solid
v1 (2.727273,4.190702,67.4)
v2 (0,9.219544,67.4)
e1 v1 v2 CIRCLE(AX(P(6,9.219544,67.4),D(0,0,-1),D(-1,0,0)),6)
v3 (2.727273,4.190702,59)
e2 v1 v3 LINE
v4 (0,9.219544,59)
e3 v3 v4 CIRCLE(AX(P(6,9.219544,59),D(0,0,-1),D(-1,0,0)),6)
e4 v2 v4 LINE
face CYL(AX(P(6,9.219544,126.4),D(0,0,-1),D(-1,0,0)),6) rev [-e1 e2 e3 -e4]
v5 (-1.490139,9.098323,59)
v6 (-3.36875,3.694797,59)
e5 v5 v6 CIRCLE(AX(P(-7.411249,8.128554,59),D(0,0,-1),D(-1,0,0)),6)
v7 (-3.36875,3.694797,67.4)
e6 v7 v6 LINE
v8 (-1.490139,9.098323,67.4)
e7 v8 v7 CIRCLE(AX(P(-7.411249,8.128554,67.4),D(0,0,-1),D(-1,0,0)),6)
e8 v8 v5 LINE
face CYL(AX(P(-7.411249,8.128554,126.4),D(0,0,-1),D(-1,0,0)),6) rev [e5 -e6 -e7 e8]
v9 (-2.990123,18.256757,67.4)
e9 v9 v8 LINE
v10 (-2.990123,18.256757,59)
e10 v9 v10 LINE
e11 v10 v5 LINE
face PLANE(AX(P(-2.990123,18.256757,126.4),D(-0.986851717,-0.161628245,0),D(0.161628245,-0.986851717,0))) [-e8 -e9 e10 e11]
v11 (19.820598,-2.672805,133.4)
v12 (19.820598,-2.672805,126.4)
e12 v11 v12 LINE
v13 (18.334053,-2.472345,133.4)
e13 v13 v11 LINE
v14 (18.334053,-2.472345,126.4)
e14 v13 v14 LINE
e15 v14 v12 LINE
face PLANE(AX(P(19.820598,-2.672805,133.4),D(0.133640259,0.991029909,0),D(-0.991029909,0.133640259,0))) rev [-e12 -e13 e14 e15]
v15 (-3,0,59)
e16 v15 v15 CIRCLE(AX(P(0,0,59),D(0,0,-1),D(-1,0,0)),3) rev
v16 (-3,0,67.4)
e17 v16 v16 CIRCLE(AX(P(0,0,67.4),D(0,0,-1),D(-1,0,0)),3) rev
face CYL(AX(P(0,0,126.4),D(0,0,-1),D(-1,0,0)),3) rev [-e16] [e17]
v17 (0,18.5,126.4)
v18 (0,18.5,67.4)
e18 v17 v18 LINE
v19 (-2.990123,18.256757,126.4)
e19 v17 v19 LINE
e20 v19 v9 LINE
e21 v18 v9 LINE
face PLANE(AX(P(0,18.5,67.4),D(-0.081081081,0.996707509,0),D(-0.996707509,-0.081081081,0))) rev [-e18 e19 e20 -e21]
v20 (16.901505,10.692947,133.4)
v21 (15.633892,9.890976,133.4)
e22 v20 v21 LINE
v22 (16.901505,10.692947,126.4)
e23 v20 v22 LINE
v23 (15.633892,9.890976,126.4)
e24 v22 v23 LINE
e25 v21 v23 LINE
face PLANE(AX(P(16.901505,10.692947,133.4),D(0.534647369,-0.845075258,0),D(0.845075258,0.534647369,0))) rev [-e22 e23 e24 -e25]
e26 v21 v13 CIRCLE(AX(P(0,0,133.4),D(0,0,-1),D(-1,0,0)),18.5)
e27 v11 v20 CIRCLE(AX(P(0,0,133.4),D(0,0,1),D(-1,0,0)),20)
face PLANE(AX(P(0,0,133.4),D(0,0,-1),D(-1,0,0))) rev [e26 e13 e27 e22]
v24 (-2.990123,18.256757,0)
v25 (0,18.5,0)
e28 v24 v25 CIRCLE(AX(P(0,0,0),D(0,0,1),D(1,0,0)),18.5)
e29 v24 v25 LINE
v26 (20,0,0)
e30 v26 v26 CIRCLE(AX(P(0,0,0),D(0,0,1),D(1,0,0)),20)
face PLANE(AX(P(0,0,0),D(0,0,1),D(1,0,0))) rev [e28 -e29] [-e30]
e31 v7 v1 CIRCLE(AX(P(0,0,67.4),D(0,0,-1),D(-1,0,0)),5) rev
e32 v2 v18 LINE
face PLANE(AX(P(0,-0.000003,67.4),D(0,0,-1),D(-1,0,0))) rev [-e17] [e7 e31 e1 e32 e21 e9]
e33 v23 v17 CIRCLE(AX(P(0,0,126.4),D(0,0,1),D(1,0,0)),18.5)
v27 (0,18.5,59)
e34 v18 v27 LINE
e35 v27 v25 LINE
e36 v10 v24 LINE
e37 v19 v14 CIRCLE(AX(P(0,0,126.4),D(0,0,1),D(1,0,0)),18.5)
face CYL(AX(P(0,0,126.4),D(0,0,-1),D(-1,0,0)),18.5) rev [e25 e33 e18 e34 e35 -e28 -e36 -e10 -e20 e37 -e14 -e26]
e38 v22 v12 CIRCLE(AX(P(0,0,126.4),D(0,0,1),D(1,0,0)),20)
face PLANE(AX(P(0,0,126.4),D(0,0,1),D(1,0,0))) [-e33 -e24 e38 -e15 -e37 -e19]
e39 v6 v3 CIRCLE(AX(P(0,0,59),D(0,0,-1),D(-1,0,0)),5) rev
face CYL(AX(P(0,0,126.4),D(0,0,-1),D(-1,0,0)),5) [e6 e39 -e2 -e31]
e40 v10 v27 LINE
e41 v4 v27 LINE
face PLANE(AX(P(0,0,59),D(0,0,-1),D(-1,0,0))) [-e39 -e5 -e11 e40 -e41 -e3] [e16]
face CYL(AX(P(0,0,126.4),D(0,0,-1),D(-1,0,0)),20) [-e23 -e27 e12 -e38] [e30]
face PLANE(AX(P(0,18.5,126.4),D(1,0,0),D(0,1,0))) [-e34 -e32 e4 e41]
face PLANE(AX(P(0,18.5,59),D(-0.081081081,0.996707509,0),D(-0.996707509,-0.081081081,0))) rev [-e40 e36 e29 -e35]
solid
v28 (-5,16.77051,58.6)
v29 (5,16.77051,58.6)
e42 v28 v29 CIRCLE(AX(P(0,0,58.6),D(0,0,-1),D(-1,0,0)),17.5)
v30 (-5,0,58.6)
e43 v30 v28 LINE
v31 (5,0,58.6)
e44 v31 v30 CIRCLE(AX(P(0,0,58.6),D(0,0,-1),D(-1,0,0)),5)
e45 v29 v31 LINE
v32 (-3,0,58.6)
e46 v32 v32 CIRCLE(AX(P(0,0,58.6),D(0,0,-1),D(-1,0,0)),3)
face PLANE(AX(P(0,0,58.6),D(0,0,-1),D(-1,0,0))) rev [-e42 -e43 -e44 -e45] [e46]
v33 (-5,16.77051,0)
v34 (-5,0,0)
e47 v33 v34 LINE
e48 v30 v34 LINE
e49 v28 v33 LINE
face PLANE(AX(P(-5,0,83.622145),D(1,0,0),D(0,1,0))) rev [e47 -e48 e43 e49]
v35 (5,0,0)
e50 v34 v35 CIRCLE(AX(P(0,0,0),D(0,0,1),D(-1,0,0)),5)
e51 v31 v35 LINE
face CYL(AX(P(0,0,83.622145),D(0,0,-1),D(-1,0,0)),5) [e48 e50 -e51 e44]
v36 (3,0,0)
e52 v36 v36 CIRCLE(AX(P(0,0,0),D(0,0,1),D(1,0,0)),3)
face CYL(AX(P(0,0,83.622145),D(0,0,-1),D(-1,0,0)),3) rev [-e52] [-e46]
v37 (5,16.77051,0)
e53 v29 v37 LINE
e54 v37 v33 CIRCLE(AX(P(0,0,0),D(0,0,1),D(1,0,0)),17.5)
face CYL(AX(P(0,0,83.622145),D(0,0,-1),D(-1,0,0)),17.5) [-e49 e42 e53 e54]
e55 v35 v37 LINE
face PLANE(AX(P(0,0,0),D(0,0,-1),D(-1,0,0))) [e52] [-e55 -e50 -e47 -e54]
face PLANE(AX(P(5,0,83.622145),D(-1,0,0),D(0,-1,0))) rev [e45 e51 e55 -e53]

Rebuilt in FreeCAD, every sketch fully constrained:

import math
import FreeCAD as App
import Part
import Sketcher

V = App.Vector
Q = App.Units.Quantity

doc = App.newDocument("Part")
body = doc.addObject("PartDesign::Body", "Body")

# Sketch on XY plane
sketch1 = body.newObject("Sketcher::SketchObject", "Sketch")
sketch1.AttachmentSupport = (doc.getObject("XY_Plane"), [""])
sketch1.MapMode = "FlatFace"
sketch1.addGeometry([
    Part.Circle(V(0, 0, 0), V(0, 0, 1), 20),
    Part.Circle(V(0, 0, 0), V(0, 0, 1), 18),
], False)
sketch1.addConstraint([
    Sketcher.Constraint("Coincident", 0, 3, -1, 1),
    Sketcher.Constraint("Coincident", 1, 3, -1, 1),
    Sketcher.Constraint("Diameter", 0, 40.0),
    Sketcher.Constraint("Diameter", 1, 37.0),
])
pad1 = body.newObject("PartDesign::Pad", "Pad")
pad1.Profile = sketch1
pad1.Length = 126.4

# Sketch on XY plane
sketch2 = body.newObject("Sketcher::SketchObject", "Sketch001")
sketch2.AttachmentSupport = (doc.getObject("XY_Plane"), [""])
sketch2.MapMode = "FlatFace"
sketch2.addGeometry([
    Part.LineSegment(V(0, 18.5, 0), V(0, 9.2, 0)),  # 0
    Part.ArcOfCircle(Part.Circle(V(6, 9.2, 0), V(0, 0, 1), 6), math.radians(-180), math.radians(-123)),  # 1
    Part.ArcOfCircle(Part.Circle(V(0, 0, 0), V(0, 0, 1), 5), math.radians(132), math.radians(417)),  # 2
    Part.ArcOfCircle(Part.Circle(V(-7.4, 8.1, 0), V(0, 0, 1), 6), math.radians(-48), math.radians(9)),  # 3
    Part.LineSegment(V(-1.5, 9.1, 0), V(-3, 18.3, 0)),  # 4
    Part.ArcOfCircle(Part.Circle(V(0, 0, 0), V(0, 0, 1), 18.5), math.radians(90), math.radians(99.3)),  # 5
    Part.Circle(V(0, 0, 0), V(0, 0, 1), 3),  # 6
], False)
sketch2.addConstraint([
    Sketcher.Constraint("Tangent", 0, 2, 1, 1),
    Sketcher.Constraint("Tangent", 1, 2, 2, 2),
    Sketcher.Constraint("Tangent", 2, 1, 3, 1),
    Sketcher.Constraint("Tangent", 3, 2, 4, 1),
    Sketcher.Constraint("Coincident", 4, 2, 5, 2),
    Sketcher.Constraint("Coincident", 5, 1, 0, 1),
    Sketcher.Constraint("Vertical", 0),
    Sketcher.Constraint("Coincident", 2, 3, -1, 1),
    Sketcher.Constraint("Coincident", 5, 3, -1, 1),
    Sketcher.Constraint("Coincident", 6, 3, -1, 1),
    Sketcher.Constraint("Equal", 1, 3),
    Sketcher.Constraint("PointOnObject", 0, 2, -2),
    Sketcher.Constraint("Diameter", 6, 6.0),
    Sketcher.Constraint("Radius", 1, 6.0),
    Sketcher.Constraint("Radius", 2, 5.0),
    Sketcher.Constraint("Radius", 5, 18.5),
    Sketcher.Constraint("DistanceX", 3, 3, 2, 1, 4.0425),
    Sketcher.Constraint("DistanceX", 3, 2, -1, 1, 1.490139),
])
pad2 = body.newObject("PartDesign::Pad", "Pad001")
pad2.Profile = sketch2
pad2.Length = 126.4

# Sketch on XY plane
sketch3 = body.newObject("Sketcher::SketchObject", "Sketch002")
sketch3.AttachmentSupport = (doc.getObject("XY_Plane"), [""])
sketch3.MapMode = "FlatFace"
sketch3.addGeometry([
    Part.LineSegment(V(-3, 18.3, 0), V(0, 18.5, 0)),
    Part.ArcOfCircle(Part.Circle(V(0, 0, 0), V(0, 0, 1), 18.5), math.radians(99), math.radians(450)),
], False)
sketch3.addConstraint([
    Sketcher.Constraint("Coincident", 0, 1, 1, 1),
    Sketcher.Constraint("Coincident", 1, 2, 0, 2),
    Sketcher.Constraint("Coincident", 1, 3, -1, 1),
    Sketcher.Constraint("PointOnObject", 1, 2, -2),
    Sketcher.Constraint("Radius", 1, 18.5),
    Sketcher.Constraint("Distance", 0, 3.0),
])
pocket1 = body.newObject("PartDesign::Pocket", "Pocket")
pocket1.Profile = sketch3
pocket1.Length = 59
pocket1.Reversed = True

# Sketch on XY plane
sketch4 = body.newObject("Sketcher::SketchObject", "Sketch003")
sketch4.AttachmentSupport = (doc.getObject("XY_Plane"), [""])
sketch4.MapMode = "FlatFace"
sketch4.AttachmentOffset = App.Placement(V(0, 0, 126.4), App.Rotation())
sketch4.addGeometry([
    Part.LineSegment(V(0, 18.5, 0), V(-3, 18.3, 0)),
    Part.ArcOfCircle(Part.Circle(V(0, 0, 0), V(0, 0, 1), 18.5), math.radians(99), math.radians(450)),
], False)
sketch4.addConstraint([
    Sketcher.Constraint("Coincident", 0, 1, 1, 2),
    Sketcher.Constraint("Coincident", 1, 1, 0, 2),
    Sketcher.Constraint("Coincident", 1, 3, -1, 1),
    Sketcher.Constraint("PointOnObject", 0, 1, -2),
    Sketcher.Constraint("Distance", 0, 3.0),
    Sketcher.Constraint("DistanceY", -1, 1, 0, 1, 18.5),
])
pocket2 = body.newObject("PartDesign::Pocket", "Pocket001")
pocket2.Profile = sketch4
pocket2.Length = 59

# Sketch on XY plane
sketch5 = body.newObject("Sketcher::SketchObject", "Sketch004")
sketch5.AttachmentSupport = (doc.getObject("XY_Plane"), [""])
sketch5.MapMode = "FlatFace"
sketch5.AttachmentOffset = App.Placement(V(0, 0, 126.4), App.Rotation())
sketch5.addGeometry([
    Part.LineSegment(V(16.9, 10.7, 0), V(15.6, 9.9, 0)),
    Part.ArcOfCircle(Part.Circle(V(0, 0, 0), V(0, 0, 1), 18.5), math.radians(-8), math.radians(32)),
    Part.LineSegment(V(18.3, -2.5, 0), V(19.8, -2.7, 0)),
    Part.ArcOfCircle(Part.Circle(V(0, 0, 0), V(0, 0, 1), 20), math.radians(-8), math.radians(32)),
], False)
sketch5.addConstraint([
    Sketcher.Constraint("Coincident", 0, 2, 1, 2),
    Sketcher.Constraint("Coincident", 1, 1, 2, 1),
    Sketcher.Constraint("Coincident", 2, 2, 3, 1),
    Sketcher.Constraint("Coincident", 3, 2, 0, 1),
    Sketcher.Constraint("Coincident", 1, 3, -1, 1),
    Sketcher.Constraint("Coincident", 3, 3, -1, 1),
    Sketcher.Constraint("Radius", 3, 20.0),
    Sketcher.Constraint("Radius", 1, 18.5),
    Sketcher.Constraint("Angle", 0, Q("-147.68 deg")),
    Sketcher.Constraint("Angle", 2, Q("-7.68 deg")),
    Sketcher.Constraint("DistanceX", -1, 1, 2, 2, 19.820598),
    Sketcher.Constraint("DistanceX", 0, 2, 1, 1, 2.700161),
])
pad3 = body.newObject("PartDesign::Pad", "Pad002")
pad3.Profile = sketch5
pad3.Length = 7
body2 = doc.addObject("PartDesign::Body", "Body001")

# Sketch on XY plane
sketch6 = body2.newObject("Sketcher::SketchObject", "Sketch005")
sketch6.AttachmentSupport = (doc.getObject("XY_Plane001"), [""])
sketch6.MapMode = "FlatFace"
sketch6.addGeometry([
    Part.LineSegment(V(5, 0, 0), V(5, 16.8, 0)),  # 0
    Part.ArcOfCircle(Part.Circle(V(0, 0, 0), V(0, 0, 1), 17.5), math.radians(73), math.radians(107)),  # 1
    Part.LineSegment(V(-5, 16.8, 0), V(-5, 0, 0)),  # 2
    Part.ArcOfCircle(Part.Circle(V(0, 0, 0), V(0, 0, 1), 5), math.radians(180), math.radians(360)),  # 3
    Part.Circle(V(0, 0, 0), V(0, 0, 1), 3),  # 4
], False)
sketch6.addConstraint([
    Sketcher.Constraint("Coincident", 0, 2, 1, 1),
    Sketcher.Constraint("Coincident", 1, 2, 2, 1),
    Sketcher.Constraint("Tangent", 2, 2, 3, 1),
    Sketcher.Constraint("Tangent", 3, 2, 0, 1),
    Sketcher.Constraint("Vertical", 0),
    Sketcher.Constraint("Vertical", 2),
    Sketcher.Constraint("Coincident", 1, 3, -1, 1),
    Sketcher.Constraint("Coincident", 3, 3, -1, 1),
    Sketcher.Constraint("Coincident", 4, 3, -1, 1),
    Sketcher.Constraint("Diameter", 4, 6.0),
    Sketcher.Constraint("Radius", 3, 5.0),
    Sketcher.Constraint("Radius", 1, 17.5),
])
pad4 = body2.newObject("PartDesign::Pad", "Pad003")
pad4.Profile = sketch6
pad4.Length = 58.6

doc.recompute()
